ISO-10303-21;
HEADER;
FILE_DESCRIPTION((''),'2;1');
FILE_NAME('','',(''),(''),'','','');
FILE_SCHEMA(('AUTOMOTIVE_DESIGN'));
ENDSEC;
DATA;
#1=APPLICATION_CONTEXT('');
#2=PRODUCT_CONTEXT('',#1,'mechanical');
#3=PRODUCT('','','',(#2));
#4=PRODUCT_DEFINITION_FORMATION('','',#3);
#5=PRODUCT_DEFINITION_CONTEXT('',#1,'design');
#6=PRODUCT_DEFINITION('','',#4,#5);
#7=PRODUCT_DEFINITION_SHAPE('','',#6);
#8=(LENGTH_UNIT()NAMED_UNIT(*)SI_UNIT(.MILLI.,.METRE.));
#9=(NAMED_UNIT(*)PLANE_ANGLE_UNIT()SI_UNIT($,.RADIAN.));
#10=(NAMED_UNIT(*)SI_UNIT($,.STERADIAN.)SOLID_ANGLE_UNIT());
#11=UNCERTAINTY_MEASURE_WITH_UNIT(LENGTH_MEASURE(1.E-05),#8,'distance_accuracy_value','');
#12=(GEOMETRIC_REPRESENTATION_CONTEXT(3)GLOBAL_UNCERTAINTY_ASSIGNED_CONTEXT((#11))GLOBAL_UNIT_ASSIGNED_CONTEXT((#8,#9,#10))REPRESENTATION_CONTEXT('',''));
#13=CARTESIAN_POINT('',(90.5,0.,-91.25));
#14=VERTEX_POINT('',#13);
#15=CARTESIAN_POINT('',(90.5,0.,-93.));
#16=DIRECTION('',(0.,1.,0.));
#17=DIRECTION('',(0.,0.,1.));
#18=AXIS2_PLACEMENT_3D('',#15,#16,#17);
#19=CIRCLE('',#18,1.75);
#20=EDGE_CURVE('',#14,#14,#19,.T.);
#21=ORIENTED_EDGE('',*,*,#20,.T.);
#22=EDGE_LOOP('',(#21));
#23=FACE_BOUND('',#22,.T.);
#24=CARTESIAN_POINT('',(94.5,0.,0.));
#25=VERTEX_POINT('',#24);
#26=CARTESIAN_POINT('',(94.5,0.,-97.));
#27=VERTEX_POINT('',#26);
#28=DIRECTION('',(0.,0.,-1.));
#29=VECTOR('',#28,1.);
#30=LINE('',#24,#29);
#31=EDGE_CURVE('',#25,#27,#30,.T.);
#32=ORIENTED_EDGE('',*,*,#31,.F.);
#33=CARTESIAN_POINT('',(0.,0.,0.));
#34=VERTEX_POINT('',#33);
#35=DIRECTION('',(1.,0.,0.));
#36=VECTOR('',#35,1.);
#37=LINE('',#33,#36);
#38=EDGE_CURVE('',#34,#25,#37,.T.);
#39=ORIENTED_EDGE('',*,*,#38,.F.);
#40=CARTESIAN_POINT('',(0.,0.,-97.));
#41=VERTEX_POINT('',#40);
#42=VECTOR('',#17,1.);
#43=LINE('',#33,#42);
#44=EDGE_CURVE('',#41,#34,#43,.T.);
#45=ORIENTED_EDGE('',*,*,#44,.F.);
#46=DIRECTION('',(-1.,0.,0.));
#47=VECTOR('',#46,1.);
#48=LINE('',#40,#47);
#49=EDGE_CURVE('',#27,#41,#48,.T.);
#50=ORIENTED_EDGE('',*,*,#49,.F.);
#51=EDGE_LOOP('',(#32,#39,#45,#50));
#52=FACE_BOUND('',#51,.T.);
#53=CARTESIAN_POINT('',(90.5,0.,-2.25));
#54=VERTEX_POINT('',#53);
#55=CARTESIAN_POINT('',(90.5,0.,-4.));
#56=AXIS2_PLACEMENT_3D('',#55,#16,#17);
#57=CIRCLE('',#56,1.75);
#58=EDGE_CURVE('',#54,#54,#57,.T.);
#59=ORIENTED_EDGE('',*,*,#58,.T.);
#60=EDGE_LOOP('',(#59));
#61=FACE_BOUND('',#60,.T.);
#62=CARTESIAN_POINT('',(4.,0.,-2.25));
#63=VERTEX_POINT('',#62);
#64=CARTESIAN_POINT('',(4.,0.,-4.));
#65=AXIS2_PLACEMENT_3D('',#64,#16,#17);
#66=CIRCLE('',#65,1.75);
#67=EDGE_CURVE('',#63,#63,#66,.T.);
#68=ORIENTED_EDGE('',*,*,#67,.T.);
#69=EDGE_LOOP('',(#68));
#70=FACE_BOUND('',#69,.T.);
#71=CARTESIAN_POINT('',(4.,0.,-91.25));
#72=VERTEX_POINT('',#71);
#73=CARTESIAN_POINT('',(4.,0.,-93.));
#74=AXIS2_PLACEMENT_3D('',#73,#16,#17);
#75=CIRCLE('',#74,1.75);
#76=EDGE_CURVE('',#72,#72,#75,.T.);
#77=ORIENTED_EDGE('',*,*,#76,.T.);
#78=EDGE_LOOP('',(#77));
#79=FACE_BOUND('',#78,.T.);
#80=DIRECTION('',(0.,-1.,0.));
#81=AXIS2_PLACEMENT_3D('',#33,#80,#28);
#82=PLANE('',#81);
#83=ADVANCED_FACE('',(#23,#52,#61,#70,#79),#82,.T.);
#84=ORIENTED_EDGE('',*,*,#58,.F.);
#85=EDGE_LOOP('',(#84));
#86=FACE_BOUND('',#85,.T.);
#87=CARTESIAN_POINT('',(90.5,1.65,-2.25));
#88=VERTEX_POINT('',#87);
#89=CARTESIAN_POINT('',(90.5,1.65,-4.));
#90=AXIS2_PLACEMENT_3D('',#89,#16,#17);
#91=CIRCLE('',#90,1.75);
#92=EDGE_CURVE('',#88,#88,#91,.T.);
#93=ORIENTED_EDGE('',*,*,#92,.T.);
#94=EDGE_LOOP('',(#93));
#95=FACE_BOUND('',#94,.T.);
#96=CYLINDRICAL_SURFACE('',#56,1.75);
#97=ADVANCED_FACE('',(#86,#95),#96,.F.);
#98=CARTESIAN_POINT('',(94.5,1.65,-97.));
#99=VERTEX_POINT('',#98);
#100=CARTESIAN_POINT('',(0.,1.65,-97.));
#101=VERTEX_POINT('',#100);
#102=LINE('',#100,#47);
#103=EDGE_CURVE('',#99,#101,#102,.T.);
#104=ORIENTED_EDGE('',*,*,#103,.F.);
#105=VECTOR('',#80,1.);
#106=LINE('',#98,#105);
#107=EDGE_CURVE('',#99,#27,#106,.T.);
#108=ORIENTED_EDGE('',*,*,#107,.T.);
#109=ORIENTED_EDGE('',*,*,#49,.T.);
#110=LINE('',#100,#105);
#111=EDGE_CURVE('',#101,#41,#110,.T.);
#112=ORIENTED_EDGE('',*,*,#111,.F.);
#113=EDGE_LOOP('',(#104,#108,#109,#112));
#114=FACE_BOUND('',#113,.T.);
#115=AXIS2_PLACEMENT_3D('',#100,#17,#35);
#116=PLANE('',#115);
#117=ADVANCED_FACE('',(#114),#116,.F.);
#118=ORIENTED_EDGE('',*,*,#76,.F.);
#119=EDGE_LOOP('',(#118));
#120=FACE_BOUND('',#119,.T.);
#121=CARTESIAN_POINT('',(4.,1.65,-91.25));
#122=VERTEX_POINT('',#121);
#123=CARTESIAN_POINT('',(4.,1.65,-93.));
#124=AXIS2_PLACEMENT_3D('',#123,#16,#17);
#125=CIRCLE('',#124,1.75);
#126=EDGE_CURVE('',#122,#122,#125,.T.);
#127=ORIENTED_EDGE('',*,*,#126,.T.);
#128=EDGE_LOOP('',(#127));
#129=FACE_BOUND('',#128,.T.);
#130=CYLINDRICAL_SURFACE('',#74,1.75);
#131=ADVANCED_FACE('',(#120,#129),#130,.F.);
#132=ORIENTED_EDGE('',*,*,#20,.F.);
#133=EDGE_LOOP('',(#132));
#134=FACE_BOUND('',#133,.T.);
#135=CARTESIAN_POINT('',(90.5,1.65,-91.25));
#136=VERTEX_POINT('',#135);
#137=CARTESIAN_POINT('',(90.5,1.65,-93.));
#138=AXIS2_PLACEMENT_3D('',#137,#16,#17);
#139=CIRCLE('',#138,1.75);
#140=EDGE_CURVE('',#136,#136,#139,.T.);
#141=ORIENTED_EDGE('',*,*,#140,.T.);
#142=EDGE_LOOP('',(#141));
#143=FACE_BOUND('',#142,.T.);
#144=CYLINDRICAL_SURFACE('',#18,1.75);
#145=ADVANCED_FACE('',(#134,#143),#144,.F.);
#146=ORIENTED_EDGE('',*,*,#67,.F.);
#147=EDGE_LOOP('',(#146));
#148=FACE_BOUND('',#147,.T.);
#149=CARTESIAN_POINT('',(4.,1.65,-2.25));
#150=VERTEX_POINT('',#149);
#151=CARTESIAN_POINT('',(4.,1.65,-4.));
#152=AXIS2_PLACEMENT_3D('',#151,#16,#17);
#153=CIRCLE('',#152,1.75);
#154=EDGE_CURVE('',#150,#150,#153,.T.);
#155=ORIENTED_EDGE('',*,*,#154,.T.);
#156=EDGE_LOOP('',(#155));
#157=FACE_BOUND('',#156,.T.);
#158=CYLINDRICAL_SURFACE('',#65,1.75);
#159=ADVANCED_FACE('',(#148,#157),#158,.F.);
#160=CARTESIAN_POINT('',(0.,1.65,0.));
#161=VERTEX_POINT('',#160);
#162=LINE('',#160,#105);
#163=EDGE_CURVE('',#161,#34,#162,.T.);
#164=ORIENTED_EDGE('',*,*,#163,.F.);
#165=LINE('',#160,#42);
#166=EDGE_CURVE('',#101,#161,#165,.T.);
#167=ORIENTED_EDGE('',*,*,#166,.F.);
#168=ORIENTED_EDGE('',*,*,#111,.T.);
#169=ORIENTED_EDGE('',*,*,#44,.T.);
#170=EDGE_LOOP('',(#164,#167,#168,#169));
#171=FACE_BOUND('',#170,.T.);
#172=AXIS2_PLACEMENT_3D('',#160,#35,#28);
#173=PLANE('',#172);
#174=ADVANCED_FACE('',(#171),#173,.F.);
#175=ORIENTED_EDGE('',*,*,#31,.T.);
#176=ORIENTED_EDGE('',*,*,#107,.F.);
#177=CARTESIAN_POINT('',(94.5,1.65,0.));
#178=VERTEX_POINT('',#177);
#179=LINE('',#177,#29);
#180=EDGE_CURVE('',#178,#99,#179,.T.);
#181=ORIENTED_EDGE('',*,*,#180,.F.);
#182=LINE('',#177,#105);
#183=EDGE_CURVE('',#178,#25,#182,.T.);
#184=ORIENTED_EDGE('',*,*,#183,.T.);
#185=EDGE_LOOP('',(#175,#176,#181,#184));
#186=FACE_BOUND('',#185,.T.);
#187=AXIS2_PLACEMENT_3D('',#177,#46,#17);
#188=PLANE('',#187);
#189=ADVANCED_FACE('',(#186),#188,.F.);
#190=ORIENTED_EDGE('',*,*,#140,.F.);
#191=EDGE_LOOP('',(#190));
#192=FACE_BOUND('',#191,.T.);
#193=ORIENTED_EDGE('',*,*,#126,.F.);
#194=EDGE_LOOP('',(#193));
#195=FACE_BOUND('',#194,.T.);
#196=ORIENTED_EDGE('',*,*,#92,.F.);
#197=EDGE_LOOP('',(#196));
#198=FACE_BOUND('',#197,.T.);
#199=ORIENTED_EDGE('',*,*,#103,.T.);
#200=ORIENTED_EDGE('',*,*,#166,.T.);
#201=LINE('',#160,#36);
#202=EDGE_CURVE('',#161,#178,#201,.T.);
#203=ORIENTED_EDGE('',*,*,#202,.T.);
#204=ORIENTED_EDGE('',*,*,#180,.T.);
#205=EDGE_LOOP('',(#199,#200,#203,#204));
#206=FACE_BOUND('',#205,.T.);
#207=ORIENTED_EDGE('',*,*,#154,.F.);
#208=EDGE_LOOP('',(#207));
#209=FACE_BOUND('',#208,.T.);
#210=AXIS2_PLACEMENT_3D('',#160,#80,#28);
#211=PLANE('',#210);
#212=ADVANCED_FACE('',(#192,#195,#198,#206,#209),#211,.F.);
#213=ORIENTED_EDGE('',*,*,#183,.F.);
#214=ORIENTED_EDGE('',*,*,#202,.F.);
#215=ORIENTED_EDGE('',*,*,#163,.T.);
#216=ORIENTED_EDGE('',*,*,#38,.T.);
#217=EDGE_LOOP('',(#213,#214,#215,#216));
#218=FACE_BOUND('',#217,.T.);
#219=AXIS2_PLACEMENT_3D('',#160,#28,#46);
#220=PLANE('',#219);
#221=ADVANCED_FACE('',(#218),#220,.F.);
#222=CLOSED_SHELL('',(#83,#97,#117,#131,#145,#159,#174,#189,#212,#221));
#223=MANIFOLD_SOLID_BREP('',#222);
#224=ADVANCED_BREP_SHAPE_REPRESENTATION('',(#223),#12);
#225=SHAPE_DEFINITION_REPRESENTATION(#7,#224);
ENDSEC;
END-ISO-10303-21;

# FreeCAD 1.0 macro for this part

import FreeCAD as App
import Part
import Sketcher
from FreeCAD import Vector
Q = App.Units.Quantity

doc = App.newDocument("Part")
params = doc.addObject("Spreadsheet::Sheet", "Params")
for row, (alias, value) in enumerate([
    ("sketch1_height", "97 mm"),
    ("sketch1_width", "94.5 mm"),
    ("pad1_length", "1.65 mm"),
    ("sketch2_diameter", "3.5 mm"),
], start=1):
    params.set(f"A{row}", alias)
    params.set(f"B{row}", "=" + value)
    params.setAlias(f"B{row}", alias)

body = doc.addObject("PartDesign::Body", "Body")

sketch1 = body.newObject("Sketcher::SketchObject", "Sketch")
sketch1.AttachmentSupport = (doc.getObject("XZ_Plane"), [""])
sketch1.MapMode = "FlatFace"
sketch1.addGeometry([
    Part.LineSegment(Vector(0, -97, 0), Vector(0, 0, 0)),
    Part.LineSegment(Vector(0, 0, 0), Vector(94.5, 0, 0)),
    Part.LineSegment(Vector(94.5, 0, 0), Vector(94.5, -97, 0)),
    Part.LineSegment(Vector(94.5, -97, 0), Vector(0, -97, 0)),
], False)
sketch1.addConstraint([
    Sketcher.Constraint("Coincident", 0, 2, 1, 1),
    Sketcher.Constraint("Coincident", 1, 2, 2, 1),
    Sketcher.Constraint("Coincident", 2, 2, 3, 1),
    Sketcher.Constraint("Coincident", 3, 2, 0, 1),
    Sketcher.Constraint("Vertical", 0),
    Sketcher.Constraint("Horizontal", 1),
    Sketcher.Constraint("Vertical", 2),
    Sketcher.Constraint("Horizontal", 3),
    Sketcher.Constraint("Coincident", 0, 2, -1, 1),
    Sketcher.Constraint("DistanceY", 0, 1, 0, 2, Q("97 mm")),
    Sketcher.Constraint("DistanceX", 1, 1, 1, 2, Q("94.5 mm")),
])
sketch1.setExpression("Constraints[9]", "Params.sketch1_height")
sketch1.setExpression("Constraints[10]", "Params.sketch1_width")
pad1 = body.newObject("PartDesign::Pad", "Pad")
pad1.Profile = sketch1
pad1.setExpression("Length", "Params.pad1_length")
pad1.Reversed = True

sketch2 = body.newObject("Sketcher::SketchObject", "Sketch001")
sketch2.AttachmentSupport = (doc.getObject("XZ_Plane"), [""])
sketch2.MapMode = "FlatFace"
sketch2.AttachmentOffset = App.Placement(Vector(0, 0, -1.65), App.Rotation())
sketch2.addGeometry([
    Part.Circle(Vector(4, -93, 0), Vector(0, 0, 1), 1.75),
    Part.Circle(Vector(90.5, -93, 0), Vector(0, 0, 1), 1.75),
    Part.Circle(Vector(90.5, -4, 0), Vector(0, 0, 1), 1.75),
    Part.Circle(Vector(4, -4, 0), Vector(0, 0, 1), 1.75),
], False)
sketch2.addConstraint([
    Sketcher.Constraint("Equal", 0, 1),
    Sketcher.Constraint("Equal", 1, 2),
    Sketcher.Constraint("Equal", 2, 3),
    Sketcher.Constraint("Horizontal", 0, 3, 1, 3),
    Sketcher.Constraint("Horizontal", 2, 3, 3, 3),
    Sketcher.Constraint("Vertical", 1, 3, 2, 3),
    Sketcher.Constraint("Vertical", 0, 3, 3, 3),
    Sketcher.Constraint("Diameter", 0, Q("3.5 mm")),
    Sketcher.Constraint("DistanceX", -1, 1, 0, 3, Q("4 mm")),
    Sketcher.Constraint("DistanceY", 0, 3, -1, 1, Q("93 mm")),
    Sketcher.Constraint("DistanceY", 2, 3, -1, 1, Q("4 mm")),
    Sketcher.Constraint("DistanceX", -1, 1, 1, 3, Q("90.5 mm")),
])
sketch2.setExpression("Constraints[7]", "Params.sketch2_diameter")
pocket1 = body.newObject("PartDesign::Pocket", "Pocket")
pocket1.Profile = sketch2
pocket1.Type = "ThroughAll"
pocket1.Reversed = True

doc.recompute()
